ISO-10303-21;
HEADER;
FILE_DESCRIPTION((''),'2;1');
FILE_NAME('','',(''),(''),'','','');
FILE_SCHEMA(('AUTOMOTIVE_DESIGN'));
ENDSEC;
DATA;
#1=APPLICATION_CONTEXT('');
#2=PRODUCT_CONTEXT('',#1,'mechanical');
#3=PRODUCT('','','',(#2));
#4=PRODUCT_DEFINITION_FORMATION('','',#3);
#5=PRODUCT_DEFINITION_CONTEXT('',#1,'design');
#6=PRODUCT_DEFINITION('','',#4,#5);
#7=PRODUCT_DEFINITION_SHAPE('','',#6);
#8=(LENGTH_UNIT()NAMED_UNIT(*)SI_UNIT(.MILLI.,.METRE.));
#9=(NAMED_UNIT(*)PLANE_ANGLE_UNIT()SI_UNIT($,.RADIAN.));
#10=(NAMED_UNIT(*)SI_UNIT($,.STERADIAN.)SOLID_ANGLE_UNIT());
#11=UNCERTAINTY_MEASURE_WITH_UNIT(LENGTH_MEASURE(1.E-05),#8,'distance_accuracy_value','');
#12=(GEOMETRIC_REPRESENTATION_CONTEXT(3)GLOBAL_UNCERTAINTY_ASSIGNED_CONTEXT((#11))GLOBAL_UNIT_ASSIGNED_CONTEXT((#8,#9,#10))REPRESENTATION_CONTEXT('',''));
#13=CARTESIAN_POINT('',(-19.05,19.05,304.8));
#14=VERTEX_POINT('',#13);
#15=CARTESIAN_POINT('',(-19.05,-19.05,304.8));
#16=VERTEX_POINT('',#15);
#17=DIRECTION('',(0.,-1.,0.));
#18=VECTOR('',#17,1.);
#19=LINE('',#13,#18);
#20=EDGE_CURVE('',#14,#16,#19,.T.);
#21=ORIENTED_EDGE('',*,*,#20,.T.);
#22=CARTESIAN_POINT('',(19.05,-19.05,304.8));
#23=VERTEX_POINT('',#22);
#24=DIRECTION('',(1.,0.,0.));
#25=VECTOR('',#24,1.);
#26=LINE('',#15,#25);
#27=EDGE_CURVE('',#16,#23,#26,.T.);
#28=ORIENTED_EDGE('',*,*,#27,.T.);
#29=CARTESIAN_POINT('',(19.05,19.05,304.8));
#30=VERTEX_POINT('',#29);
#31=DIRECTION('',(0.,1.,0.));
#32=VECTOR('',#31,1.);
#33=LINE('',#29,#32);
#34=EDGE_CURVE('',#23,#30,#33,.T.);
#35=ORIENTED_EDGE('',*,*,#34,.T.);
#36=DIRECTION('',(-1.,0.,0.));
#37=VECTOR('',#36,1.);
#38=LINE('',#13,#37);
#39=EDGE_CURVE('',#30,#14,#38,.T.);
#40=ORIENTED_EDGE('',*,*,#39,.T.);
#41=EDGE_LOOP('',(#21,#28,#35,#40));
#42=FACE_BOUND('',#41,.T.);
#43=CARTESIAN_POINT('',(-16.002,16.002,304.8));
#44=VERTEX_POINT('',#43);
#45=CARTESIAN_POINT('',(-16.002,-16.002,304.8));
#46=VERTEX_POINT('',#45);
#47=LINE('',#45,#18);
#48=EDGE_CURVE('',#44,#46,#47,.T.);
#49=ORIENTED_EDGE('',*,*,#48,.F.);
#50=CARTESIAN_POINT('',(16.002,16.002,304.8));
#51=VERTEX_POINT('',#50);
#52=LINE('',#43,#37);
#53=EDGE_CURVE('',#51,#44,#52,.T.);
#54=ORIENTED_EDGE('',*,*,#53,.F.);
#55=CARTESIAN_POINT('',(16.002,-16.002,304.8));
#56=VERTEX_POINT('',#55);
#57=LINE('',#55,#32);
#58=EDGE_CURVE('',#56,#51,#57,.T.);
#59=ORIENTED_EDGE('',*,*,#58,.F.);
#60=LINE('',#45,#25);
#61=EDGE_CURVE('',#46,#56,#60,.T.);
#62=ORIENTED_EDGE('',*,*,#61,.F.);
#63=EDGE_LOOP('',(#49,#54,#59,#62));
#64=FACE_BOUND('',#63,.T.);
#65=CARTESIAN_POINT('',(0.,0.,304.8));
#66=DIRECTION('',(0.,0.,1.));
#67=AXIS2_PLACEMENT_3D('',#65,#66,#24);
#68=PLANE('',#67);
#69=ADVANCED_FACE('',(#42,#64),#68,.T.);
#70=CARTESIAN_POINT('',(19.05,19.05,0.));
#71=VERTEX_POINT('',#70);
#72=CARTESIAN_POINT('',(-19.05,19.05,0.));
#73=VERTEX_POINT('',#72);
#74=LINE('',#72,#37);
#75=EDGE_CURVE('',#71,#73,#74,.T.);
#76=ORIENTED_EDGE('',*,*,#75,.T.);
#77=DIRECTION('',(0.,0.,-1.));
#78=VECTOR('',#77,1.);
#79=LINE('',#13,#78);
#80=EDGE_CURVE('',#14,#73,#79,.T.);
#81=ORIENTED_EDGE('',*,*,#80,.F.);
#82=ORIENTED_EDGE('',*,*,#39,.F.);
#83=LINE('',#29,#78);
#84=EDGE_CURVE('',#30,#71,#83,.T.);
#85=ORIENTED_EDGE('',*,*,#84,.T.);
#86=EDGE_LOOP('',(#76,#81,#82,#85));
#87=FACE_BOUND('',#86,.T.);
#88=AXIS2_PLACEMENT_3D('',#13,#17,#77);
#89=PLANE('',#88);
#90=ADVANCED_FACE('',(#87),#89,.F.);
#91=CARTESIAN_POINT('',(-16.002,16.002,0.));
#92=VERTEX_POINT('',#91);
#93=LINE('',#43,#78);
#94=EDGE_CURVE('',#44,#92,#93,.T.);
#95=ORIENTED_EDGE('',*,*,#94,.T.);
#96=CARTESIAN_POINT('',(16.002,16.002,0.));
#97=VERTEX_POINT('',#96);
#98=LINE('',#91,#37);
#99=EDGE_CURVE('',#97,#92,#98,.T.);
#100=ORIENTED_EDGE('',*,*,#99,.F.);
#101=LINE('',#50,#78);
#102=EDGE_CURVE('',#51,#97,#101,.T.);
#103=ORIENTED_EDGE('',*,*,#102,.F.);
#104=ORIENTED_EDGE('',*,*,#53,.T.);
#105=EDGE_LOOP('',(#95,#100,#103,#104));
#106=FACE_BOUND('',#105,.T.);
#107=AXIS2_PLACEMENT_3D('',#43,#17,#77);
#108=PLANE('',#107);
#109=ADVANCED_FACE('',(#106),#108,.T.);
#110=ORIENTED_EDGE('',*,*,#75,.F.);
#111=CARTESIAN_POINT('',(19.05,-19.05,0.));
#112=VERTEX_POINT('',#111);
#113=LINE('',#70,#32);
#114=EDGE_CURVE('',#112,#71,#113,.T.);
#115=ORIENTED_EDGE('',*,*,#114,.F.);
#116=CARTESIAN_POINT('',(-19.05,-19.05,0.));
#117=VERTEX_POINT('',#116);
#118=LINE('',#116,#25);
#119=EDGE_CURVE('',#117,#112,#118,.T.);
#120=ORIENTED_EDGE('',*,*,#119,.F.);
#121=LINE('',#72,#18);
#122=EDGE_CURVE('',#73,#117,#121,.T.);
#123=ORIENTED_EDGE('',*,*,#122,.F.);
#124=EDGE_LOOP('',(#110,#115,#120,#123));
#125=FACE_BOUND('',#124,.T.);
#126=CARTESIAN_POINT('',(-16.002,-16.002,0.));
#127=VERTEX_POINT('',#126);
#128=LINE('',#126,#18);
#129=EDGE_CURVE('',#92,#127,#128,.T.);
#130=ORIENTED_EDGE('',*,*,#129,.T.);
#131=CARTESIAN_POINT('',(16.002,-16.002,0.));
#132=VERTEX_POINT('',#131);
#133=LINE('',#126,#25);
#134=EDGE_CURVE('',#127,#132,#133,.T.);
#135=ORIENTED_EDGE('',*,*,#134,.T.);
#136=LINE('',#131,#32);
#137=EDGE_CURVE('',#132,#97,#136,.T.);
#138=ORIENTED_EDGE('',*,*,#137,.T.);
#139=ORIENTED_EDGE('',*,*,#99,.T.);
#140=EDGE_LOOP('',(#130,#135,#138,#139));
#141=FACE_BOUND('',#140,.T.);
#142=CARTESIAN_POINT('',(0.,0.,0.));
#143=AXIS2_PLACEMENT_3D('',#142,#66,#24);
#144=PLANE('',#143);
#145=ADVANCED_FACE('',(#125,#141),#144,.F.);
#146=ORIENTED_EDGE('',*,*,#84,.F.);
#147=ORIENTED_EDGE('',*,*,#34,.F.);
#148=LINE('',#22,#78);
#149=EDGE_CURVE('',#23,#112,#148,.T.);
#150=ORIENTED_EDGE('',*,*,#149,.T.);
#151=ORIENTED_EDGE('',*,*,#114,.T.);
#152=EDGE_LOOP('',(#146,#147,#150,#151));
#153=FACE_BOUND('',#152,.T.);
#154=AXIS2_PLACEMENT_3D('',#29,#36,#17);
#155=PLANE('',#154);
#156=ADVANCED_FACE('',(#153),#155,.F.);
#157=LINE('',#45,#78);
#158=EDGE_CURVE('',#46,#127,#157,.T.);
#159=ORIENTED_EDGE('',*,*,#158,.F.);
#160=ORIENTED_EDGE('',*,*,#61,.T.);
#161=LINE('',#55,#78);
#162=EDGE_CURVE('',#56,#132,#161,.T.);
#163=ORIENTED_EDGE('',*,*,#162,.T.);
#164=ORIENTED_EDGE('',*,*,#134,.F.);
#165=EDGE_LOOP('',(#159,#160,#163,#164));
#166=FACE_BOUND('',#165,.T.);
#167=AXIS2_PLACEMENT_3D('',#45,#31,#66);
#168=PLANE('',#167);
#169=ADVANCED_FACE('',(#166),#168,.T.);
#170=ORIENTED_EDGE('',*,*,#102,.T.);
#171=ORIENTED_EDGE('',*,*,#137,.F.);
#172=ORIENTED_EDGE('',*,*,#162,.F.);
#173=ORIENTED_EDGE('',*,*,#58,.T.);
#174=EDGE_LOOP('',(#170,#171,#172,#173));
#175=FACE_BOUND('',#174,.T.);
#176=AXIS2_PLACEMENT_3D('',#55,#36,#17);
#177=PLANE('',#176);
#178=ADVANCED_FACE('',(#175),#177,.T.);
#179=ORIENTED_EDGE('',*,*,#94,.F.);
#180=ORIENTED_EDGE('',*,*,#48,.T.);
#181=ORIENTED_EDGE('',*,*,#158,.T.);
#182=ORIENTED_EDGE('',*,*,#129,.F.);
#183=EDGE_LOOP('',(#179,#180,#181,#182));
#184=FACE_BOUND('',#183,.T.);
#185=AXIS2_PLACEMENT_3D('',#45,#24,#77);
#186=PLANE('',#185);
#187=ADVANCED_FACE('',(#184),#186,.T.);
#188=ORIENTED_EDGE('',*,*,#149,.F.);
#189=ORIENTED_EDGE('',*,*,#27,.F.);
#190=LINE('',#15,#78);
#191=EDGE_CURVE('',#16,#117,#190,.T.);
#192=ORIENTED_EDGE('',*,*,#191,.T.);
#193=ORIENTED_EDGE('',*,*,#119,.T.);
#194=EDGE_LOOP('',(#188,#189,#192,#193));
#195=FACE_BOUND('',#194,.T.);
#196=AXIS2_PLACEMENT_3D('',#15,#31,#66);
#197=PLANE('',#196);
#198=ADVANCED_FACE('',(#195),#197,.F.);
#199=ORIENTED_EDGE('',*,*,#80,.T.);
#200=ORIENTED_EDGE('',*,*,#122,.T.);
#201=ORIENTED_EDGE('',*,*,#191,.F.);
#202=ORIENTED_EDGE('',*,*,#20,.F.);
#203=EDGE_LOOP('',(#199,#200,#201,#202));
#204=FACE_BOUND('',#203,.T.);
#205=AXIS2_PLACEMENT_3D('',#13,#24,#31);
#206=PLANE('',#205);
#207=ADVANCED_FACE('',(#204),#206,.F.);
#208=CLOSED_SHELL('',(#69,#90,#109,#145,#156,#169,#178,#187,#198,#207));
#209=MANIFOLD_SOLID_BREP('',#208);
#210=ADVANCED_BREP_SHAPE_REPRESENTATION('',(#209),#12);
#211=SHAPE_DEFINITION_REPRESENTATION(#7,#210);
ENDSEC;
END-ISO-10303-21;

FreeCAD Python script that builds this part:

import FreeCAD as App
import Part
import Sketcher
from FreeCAD import Vector
Q = App.Units.Quantity

doc = App.newDocument("Part")
body = doc.addObject("PartDesign::Body", "Body")

sketch1 = body.newObject("Sketcher::SketchObject", "Sketch")
sketch1.AttachmentSupport = (doc.getObject("XY_Plane"), [""])
sketch1.MapMode = "FlatFace"
sketch1.addGeometry([
    Part.LineSegment(Vector(-19.05, 19.05, 0), Vector(-19.05, -19.05, 0)),
    Part.LineSegment(Vector(-19.05, -19.05, 0), Vector(19.05, -19.05, 0)),
    Part.LineSegment(Vector(19.05, -19.05, 0), Vector(19.05, 19.05, 0)),
    Part.LineSegment(Vector(19.05, 19.05, 0), Vector(-19.05, 19.05, 0)),
    Part.LineSegment(Vector(16.002, -16.002, 0), Vector(-16.002, -16.002, 0)),
    Part.LineSegment(Vector(-16.002, -16.002, 0), Vector(-16.002, 16.002, 0)),
    Part.LineSegment(Vector(-16.002, 16.002, 0), Vector(16.002, 16.002, 0)),
    Part.LineSegment(Vector(16.002, 16.002, 0), Vector(16.002, -16.002, 0)),
], False)
sketch1.addConstraint([
    Sketcher.Constraint("Coincident", 0, 2, 1, 1),
    Sketcher.Constraint("Coincident", 1, 2, 2, 1),
    Sketcher.Constraint("Coincident", 2, 2, 3, 1),
    Sketcher.Constraint("Coincident", 3, 2, 0, 1),
    Sketcher.Constraint("Coincident", 4, 2, 5, 1),
    Sketcher.Constraint("Coincident", 5, 2, 6, 1),
    Sketcher.Constraint("Coincident", 6, 2, 7, 1),
    Sketcher.Constraint("Coincident", 7, 2, 4, 1),
    Sketcher.Constraint("Vertical", 0),
    Sketcher.Constraint("Horizontal", 1),
    Sketcher.Constraint("Vertical", 2),
    Sketcher.Constraint("Horizontal", 3),
    Sketcher.Constraint("Horizontal", 4),
    Sketcher.Constraint("Vertical", 5),
    Sketcher.Constraint("Horizontal", 6),
    Sketcher.Constraint("Vertical", 7),
    Sketcher.Constraint("Symmetric", 0, 2, 2, 2, -1, 1),
    Sketcher.Constraint("Symmetric", 4, 2, 6, 2, -1, 1),
    Sketcher.Constraint("Equal", 3, 0),
    Sketcher.Constraint("Equal", 6, 5),
    Sketcher.Constraint("DistanceX", 1, 1, 1, 2, Q("1.5 in")),
    Sketcher.Constraint("DistanceX", 4, 2, 4, 1, Q("1.26 in")),
])
pad1 = body.newObject("PartDesign::Pad", "Pad")
pad1.Profile = sketch1
pad1.Length = Q("12 in")

doc.recompute()
